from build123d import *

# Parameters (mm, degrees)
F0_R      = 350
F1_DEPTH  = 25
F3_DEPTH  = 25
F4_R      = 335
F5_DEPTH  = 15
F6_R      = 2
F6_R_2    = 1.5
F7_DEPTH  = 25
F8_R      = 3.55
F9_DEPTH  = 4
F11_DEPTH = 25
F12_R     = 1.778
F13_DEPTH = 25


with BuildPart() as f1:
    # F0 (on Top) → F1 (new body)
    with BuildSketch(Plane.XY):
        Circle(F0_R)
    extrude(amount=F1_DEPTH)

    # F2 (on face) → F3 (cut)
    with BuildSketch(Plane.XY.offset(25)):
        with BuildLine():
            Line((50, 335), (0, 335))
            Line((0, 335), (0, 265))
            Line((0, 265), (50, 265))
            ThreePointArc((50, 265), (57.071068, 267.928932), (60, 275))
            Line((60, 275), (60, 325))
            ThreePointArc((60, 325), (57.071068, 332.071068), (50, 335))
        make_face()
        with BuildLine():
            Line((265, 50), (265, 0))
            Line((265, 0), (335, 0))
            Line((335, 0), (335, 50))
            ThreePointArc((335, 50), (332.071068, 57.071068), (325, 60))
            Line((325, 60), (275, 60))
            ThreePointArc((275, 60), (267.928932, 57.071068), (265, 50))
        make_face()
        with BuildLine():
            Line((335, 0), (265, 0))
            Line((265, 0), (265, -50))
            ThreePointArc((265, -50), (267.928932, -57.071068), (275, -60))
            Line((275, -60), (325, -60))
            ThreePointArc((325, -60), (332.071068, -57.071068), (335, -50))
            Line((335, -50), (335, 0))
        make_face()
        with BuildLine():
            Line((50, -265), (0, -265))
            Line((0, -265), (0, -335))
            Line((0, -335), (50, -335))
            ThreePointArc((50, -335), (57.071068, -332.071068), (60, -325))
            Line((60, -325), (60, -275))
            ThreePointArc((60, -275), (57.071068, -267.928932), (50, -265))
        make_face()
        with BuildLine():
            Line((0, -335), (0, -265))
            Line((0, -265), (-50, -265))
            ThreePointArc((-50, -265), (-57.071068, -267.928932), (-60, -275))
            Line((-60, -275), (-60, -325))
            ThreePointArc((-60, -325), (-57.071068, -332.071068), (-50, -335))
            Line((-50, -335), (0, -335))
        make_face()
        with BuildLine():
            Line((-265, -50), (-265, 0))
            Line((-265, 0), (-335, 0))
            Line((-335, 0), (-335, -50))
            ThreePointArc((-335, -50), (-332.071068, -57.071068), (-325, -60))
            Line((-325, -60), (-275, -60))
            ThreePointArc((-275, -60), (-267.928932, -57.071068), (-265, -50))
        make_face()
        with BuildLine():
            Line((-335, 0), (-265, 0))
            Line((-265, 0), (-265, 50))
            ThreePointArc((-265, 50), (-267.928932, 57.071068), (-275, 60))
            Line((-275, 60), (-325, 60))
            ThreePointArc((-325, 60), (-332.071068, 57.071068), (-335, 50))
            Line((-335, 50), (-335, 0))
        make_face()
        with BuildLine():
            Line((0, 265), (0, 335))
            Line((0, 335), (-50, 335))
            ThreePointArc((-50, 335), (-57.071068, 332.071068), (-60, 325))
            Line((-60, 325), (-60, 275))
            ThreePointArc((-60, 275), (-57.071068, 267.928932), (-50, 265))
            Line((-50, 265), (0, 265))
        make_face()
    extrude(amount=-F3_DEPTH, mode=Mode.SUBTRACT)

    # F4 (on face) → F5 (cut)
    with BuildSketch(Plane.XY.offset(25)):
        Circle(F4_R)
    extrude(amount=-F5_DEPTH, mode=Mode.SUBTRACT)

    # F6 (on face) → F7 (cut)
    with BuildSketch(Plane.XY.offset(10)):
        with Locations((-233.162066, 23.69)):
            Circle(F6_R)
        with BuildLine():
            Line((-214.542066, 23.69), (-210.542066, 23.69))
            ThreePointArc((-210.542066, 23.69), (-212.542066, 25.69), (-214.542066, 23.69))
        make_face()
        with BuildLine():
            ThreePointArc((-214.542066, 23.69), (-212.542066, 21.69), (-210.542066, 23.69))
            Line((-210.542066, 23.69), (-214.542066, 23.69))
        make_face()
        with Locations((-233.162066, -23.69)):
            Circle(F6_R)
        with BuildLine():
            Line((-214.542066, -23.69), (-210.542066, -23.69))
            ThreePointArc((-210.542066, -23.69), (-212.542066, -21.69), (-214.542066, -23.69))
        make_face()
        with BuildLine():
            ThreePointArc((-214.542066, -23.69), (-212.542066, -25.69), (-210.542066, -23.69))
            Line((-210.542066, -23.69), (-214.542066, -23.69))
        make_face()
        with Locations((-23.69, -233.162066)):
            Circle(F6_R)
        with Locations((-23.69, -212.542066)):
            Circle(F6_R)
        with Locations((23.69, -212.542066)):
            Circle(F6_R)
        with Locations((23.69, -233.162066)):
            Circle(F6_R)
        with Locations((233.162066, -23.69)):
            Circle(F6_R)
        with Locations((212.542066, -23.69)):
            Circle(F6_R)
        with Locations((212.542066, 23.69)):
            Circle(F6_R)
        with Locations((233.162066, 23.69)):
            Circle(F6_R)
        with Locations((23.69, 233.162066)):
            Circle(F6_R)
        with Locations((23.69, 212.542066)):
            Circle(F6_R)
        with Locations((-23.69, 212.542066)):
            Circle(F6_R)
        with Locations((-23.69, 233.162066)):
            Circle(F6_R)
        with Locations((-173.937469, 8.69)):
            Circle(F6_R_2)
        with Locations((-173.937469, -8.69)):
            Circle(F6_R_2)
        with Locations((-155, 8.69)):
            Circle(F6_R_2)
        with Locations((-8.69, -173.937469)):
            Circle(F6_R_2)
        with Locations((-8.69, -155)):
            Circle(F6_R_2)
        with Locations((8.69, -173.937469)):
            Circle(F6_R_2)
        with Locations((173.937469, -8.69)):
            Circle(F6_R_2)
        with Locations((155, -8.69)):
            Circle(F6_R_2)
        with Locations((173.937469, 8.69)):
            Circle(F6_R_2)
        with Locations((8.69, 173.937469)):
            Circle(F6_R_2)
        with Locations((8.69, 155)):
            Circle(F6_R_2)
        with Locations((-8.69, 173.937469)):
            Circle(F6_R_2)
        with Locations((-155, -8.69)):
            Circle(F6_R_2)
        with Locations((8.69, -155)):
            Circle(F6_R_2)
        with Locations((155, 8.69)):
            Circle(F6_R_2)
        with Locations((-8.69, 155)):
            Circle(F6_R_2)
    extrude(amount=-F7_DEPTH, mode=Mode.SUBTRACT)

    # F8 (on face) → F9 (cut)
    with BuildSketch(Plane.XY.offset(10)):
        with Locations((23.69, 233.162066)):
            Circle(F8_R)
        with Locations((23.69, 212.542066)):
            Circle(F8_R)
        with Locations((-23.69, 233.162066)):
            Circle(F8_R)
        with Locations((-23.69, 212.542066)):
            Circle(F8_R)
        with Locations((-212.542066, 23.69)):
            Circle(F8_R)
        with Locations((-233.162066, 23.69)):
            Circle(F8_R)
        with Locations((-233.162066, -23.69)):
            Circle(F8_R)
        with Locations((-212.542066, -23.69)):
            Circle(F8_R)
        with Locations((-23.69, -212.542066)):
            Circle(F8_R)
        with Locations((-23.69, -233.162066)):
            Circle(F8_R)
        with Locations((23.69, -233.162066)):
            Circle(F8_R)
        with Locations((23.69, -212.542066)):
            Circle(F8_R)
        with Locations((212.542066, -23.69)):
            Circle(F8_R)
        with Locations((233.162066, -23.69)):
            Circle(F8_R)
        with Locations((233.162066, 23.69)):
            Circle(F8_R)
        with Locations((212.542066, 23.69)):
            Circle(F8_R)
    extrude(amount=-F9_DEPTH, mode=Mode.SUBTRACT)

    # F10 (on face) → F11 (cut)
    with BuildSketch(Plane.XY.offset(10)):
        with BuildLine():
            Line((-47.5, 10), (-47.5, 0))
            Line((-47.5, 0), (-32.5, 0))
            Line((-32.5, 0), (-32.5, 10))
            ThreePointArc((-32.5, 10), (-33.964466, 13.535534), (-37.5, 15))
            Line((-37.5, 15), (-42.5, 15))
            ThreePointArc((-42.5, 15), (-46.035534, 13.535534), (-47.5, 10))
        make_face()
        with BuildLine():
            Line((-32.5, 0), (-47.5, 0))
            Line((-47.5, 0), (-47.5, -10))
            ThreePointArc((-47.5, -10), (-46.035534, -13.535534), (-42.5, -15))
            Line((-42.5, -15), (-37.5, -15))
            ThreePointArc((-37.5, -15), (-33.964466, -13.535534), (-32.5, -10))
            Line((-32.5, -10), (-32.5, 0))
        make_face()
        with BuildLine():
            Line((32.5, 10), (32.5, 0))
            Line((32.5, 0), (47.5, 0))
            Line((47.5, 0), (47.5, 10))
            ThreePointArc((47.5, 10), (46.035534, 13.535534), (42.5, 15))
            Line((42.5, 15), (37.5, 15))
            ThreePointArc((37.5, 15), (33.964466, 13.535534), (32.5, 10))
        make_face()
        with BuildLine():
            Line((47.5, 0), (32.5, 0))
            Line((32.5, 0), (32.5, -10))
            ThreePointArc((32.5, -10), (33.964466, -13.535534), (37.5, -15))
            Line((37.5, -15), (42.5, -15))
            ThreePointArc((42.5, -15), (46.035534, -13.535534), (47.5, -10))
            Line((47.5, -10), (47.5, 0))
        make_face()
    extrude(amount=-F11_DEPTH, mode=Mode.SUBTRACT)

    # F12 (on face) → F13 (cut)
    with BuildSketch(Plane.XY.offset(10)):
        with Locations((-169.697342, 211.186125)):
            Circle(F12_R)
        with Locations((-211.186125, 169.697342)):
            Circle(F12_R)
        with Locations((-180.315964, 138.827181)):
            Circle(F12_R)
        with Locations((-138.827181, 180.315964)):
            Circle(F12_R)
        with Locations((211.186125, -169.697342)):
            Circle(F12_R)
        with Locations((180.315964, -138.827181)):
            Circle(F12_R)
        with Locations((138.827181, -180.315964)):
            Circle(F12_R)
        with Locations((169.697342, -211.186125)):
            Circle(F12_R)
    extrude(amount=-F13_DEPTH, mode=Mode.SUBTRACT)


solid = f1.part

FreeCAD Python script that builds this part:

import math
import FreeCAD as App
import Part
import Sketcher
Q = App.Units.Quantity

doc = App.newDocument("Part")
body = doc.addObject("PartDesign::Body", "Body")

sketch1 = body.newObject("Sketcher::SketchObject", "Sketch")
sketch1.AttachmentSupport = (doc.getObject("XY_Plane"), [""])
sketch1.MapMode = "FlatFace"
sketch1.addGeometry(Part.Circle(App.Vector(0, 0, 0), App.Vector(0, 0, 1), 350), False)
sketch1.addConstraint(Sketcher.Constraint("Coincident", 0, 3, -1, 1))
sketch1.addConstraint(Sketcher.Constraint("Diameter", 0, Q("700 mm")))
pad1 = body.newObject("PartDesign::Pad", "Pad")
pad1.Profile = sketch1
pad1.Length = 25

sketch2 = body.newObject("Sketcher::SketchObject", "Sketch001")
sketch2.AttachmentSupport = (doc.getObject("XY_Plane"), [""])
sketch2.MapMode = "FlatFace"
sketch2.AttachmentOffset = App.Placement(App.Vector(0, 0, 25), App.Rotation())
sketch2.addGeometry(Part.LineSegment(App.Vector(50, 335, 0), App.Vector(-50, 335, 0)), False)
sketch2.addGeometry(Part.ArcOfCircle(Part.Circle(App.Vector(-50, 325, 0), App.Vector(0, 0, 1), 10), math.radians(90), math.radians(180)), False)
sketch2.addGeometry(Part.LineSegment(App.Vector(-60, 325, 0), App.Vector(-60, 275, 0)), False)
sketch2.addGeometry(Part.ArcOfCircle(Part.Circle(App.Vector(-50, 275, 0), App.Vector(0, 0, 1), 10), math.radians(180), math.radians(270)), False)
sketch2.addGeometry(Part.LineSegment(App.Vector(-50, 265, 0), App.Vector(50, 265, 0)), False)
sketch2.addGeometry(Part.ArcOfCircle(Part.Circle(App.Vector(50, 275, 0), App.Vector(0, 0, 1), 10), math.radians(-90), math.radians(0)), False)
sketch2.addGeometry(Part.LineSegment(App.Vector(60, 275, 0), App.Vector(60, 325, 0)), False)
sketch2.addGeometry(Part.ArcOfCircle(Part.Circle(App.Vector(50, 325, 0), App.Vector(0, 0, 1), 10), math.radians(0), math.radians(90)), False)
sketch2.addGeometry(Part.LineSegment(App.Vector(265, 50, 0), App.Vector(265, -50, 0)), False)
sketch2.addGeometry(Part.ArcOfCircle(Part.Circle(App.Vector(275, -50, 0), App.Vector(0, 0, 1), 10), math.radians(180), math.radians(270)), False)
sketch2.addGeometry(Part.LineSegment(App.Vector(275, -60, 0), App.Vector(325, -60, 0)), False)
sketch2.addGeometry(Part.ArcOfCircle(Part.Circle(App.Vector(325, -50, 0), App.Vector(0, 0, 1), 10), math.radians(-90), math.radians(0)), False)
sketch2.addGeometry(Part.LineSegment(App.Vector(335, -50, 0), App.Vector(335, 50, 0)), False)
sketch2.addGeometry(Part.ArcOfCircle(Part.Circle(App.Vector(325, 50, 0), App.Vector(0, 0, 1), 10), math.radians(0), math.radians(90)), False)
sketch2.addGeometry(Part.LineSegment(App.Vector(325, 60, 0), App.Vector(275, 60, 0)), False)
sketch2.addGeometry(Part.ArcOfCircle(Part.Circle(App.Vector(275, 50, 0), App.Vector(0, 0, 1), 10), math.radians(90), math.radians(180)), False)
sketch2.addGeometry(Part.LineSegment(App.Vector(50, -265, 0), App.Vector(-50, -265, 0)), False)
sketch2.addGeometry(Part.ArcOfCircle(Part.Circle(App.Vector(-50, -275, 0), App.Vector(0, 0, 1), 10), math.radians(90), math.radians(180)), False)
sketch2.addGeometry(Part.LineSegment(App.Vector(-60, -275, 0), App.Vector(-60, -325, 0)), False)
sketch2.addGeometry(Part.ArcOfCircle(Part.Circle(App.Vector(-50, -325, 0), App.Vector(0, 0, 1), 10), math.radians(180), math.radians(270)), False)
sketch2.addGeometry(Part.LineSegment(App.Vector(-50, -335, 0), App.Vector(50, -335, 0)), False)
sketch2.addGeometry(Part.ArcOfCircle(Part.Circle(App.Vector(50, -325, 0), App.Vector(0, 0, 1), 10), math.radians(-90), math.radians(0)), False)
sketch2.addGeometry(Part.LineSegment(App.Vector(60, -325, 0), App.Vector(60, -275, 0)), False)
sketch2.addGeometry(Part.ArcOfCircle(Part.Circle(App.Vector(50, -275, 0), App.Vector(0, 0, 1), 10), math.radians(0), math.radians(90)), False)
sketch2.addGeometry(Part.LineSegment(App.Vector(-265, -50, 0), App.Vector(-265, 50, 0)), False)
sketch2.addGeometry(Part.ArcOfCircle(Part.Circle(App.Vector(-275, 50, 0), App.Vector(0, 0, 1), 10), math.radians(0), math.radians(90)), False)
sketch2.addGeometry(Part.LineSegment(App.Vector(-275, 60, 0), App.Vector(-325, 60, 0)), False)
sketch2.addGeometry(Part.ArcOfCircle(Part.Circle(App.Vector(-325, 50, 0), App.Vector(0, 0, 1), 10), math.radians(90), math.radians(180)), False)
sketch2.addGeometry(Part.LineSegment(App.Vector(-335, 50, 0), App.Vector(-335, -50, 0)), False)
sketch2.addGeometry(Part.ArcOfCircle(Part.Circle(App.Vector(-325, -50, 0), App.Vector(0, 0, 1), 10), math.radians(180), math.radians(270)), False)
sketch2.addGeometry(Part.LineSegment(App.Vector(-325, -60, 0), App.Vector(-275, -60, 0)), False)
sketch2.addGeometry(Part.ArcOfCircle(Part.Circle(App.Vector(-275, -50, 0), App.Vector(0, 0, 1), 10), math.radians(-90), math.radians(0)), False)
sketch2.addConstraint(Sketcher.Constraint("Tangent", 0, 2, 1, 1))
sketch2.addConstraint(Sketcher.Constraint("Tangent", 1, 2, 2, 1))
sketch2.addConstraint(Sketcher.Constraint("Tangent", 2, 2, 3, 1))
sketch2.addConstraint(Sketcher.Constraint("Tangent", 3, 2, 4, 1))
sketch2.addConstraint(Sketcher.Constraint("Tangent", 4, 2, 5, 1))
sketch2.addConstraint(Sketcher.Constraint("Tangent", 5, 2, 6, 1))
sketch2.addConstraint(Sketcher.Constraint("Tangent", 6, 2, 7, 1))
sketch2.addConstraint(Sketcher.Constraint("Tangent", 7, 2, 0, 1))
sketch2.addConstraint(Sketcher.Constraint("Tangent", 8, 2, 9, 1))
sketch2.addConstraint(Sketcher.Constraint("Tangent", 9, 2, 10, 1))
sketch2.addConstraint(Sketcher.Constraint("Tangent", 10, 2, 11, 1))
sketch2.addConstraint(Sketcher.Constraint("Tangent", 11, 2, 12, 1))
sketch2.addConstraint(Sketcher.Constraint("Tangent", 12, 2, 13, 1))
sketch2.addConstraint(Sketcher.Constraint("Tangent", 13, 2, 14, 1))
sketch2.addConstraint(Sketcher.Constraint("Tangent", 14, 2, 15, 1))
sketch2.addConstraint(Sketcher.Constraint("Tangent", 15, 2, 8, 1))
sketch2.addConstraint(Sketcher.Constraint("Tangent", 16, 2, 17, 1))
sketch2.addConstraint(Sketcher.Constraint("Tangent", 17, 2, 18, 1))
sketch2.addConstraint(Sketcher.Constraint("Tangent", 18, 2, 19, 1))
sketch2.addConstraint(Sketcher.Constraint("Tangent", 19, 2, 20, 1))
sketch2.addConstraint(Sketcher.Constraint("Tangent", 20, 2, 21, 1))
sketch2.addConstraint(Sketcher.Constraint("Tangent", 21, 2, 22, 1))
sketch2.addConstraint(Sketcher.Constraint("Tangent", 22, 2, 23, 1))
sketch2.addConstraint(Sketcher.Constraint("Tangent", 23, 2, 16, 1))
sketch2.addConstraint(Sketcher.Constraint("Tangent", 24, 2, 25, 1))
sketch2.addConstraint(Sketcher.Constraint("Tangent", 25, 2, 26, 1))
sketch2.addConstraint(Sketcher.Constraint("Tangent", 26, 2, 27, 1))
sketch2.addConstraint(Sketcher.Constraint("Tangent", 27, 2, 28, 1))
sketch2.addConstraint(Sketcher.Constraint("Tangent", 28, 2, 29, 1))
sketch2.addConstraint(Sketcher.Constraint("Tangent", 29, 2, 30, 1))
sketch2.addConstraint(Sketcher.Constraint("Tangent", 30, 2, 31, 1))
sketch2.addConstraint(Sketcher.Constraint("Tangent", 31, 2, 24, 1))
sketch2.addConstraint(Sketcher.Constraint("Horizontal", 0))
sketch2.addConstraint(Sketcher.Constraint("Vertical", 2))
sketch2.addConstraint(Sketcher.Constraint("Horizontal", 4))
sketch2.addConstraint(Sketcher.Constraint("Vertical", 6))
sketch2.addConstraint(Sketcher.Constraint("Vertical", 8))
sketch2.addConstraint(Sketcher.Constraint("Horizontal", 10))
sketch2.addConstraint(Sketcher.Constraint("Vertical", 12))
sketch2.addConstraint(Sketcher.Constraint("Horizontal", 14))
sketch2.addConstraint(Sketcher.Constraint("Horizontal", 16))
sketch2.addConstraint(Sketcher.Constraint("Vertical", 18))
sketch2.addConstraint(Sketcher.Constraint("Horizontal", 20))
sketch2.addConstraint(Sketcher.Constraint("Vertical", 22))
sketch2.addConstraint(Sketcher.Constraint("Vertical", 24))
sketch2.addConstraint(Sketcher.Constraint("Horizontal", 26))
sketch2.addConstraint(Sketcher.Constraint("Vertical", 28))
sketch2.addConstraint(Sketcher.Constraint("Horizontal", 30))
sketch2.addConstraint(Sketcher.Constraint("Equal", 1, 3))
sketch2.addConstraint(Sketcher.Constraint("Equal", 3, 5))
sketch2.addConstraint(Sketcher.Constraint("Equal", 5, 7))
sketch2.addConstraint(Sketcher.Constraint("Equal", 7, 9))
sketch2.addConstraint(Sketcher.Constraint("Equal", 9, 11))
sketch2.addConstraint(Sketcher.Constraint("Equal", 11, 13))
sketch2.addConstraint(Sketcher.Constraint("Equal", 13, 15))
sketch2.addConstraint(Sketcher.Constraint("Equal", 15, 17))
sketch2.addConstraint(Sketcher.Constraint("Equal", 17, 19))
sketch2.addConstraint(Sketcher.Constraint("Equal", 19, 21))
sketch2.addConstraint(Sketcher.Constraint("Equal", 21, 23))
sketch2.addConstraint(Sketcher.Constraint("Equal", 23, 25))
sketch2.addConstraint(Sketcher.Constraint("Equal", 25, 27))
sketch2.addConstraint(Sketcher.Constraint("Equal", 27, 29))
sketch2.addConstraint(Sketcher.Constraint("Equal", 29, 31))
sketch2.addConstraint(Sketcher.Constraint("Symmetric", 5, 3, 17, 3, -1, 1))
sketch2.addConstraint(Sketcher.Constraint("Symmetric", 1, 3, 21, 3, -1, 1))
sketch2.addConstraint(Sketcher.Constraint("Symmetric", 9, 3, 25, 3, -1, 1))
sketch2.addConstraint(Sketcher.Constraint("Symmetric", 13, 3, 29, 3, -1, 1))
sketch2.addConstraint(Sketcher.Constraint("Horizontal", 15, 3, 25, 3))
sketch2.addConstraint(Sketcher.Constraint("Vertical", 3, 3, 17, 3))
sketch2.addConstraint(Sketcher.Constraint("Equal", 30, 2))
sketch2.addConstraint(Sketcher.Constraint("Equal", 20, 8))
sketch2.addConstraint(Sketcher.Constraint("Radius", 1, Q("9.999999 mm")))
sketch2.addConstraint(Sketcher.Constraint("DistanceX", 0, 2, 0, 1, Q("100 mm")))
sketch2.addConstraint(Sketcher.Constraint("DistanceX", 10, 1, 10, 2, Q("50 mm")))
sketch2.addConstraint(Sketcher.Constraint("DistanceY", -1, 1, 1, 3, Q("325.000001 mm")))
sketch2.addConstraint(Sketcher.Constraint("DistanceX", -1, 1, 9, 3, Q("274.999999 mm")))
pocket1 = body.newObject("PartDesign::Pocket", "Pocket")
pocket1.Profile = sketch2
pocket1.Length = 25

sketch3 = body.newObject("Sketcher::SketchObject", "Sketch002")
sketch3.AttachmentSupport = (doc.getObject("XY_Plane"), [""])
sketch3.MapMode = "FlatFace"
sketch3.AttachmentOffset = App.Placement(App.Vector(0, 0, 25), App.Rotation())
sketch3.addGeometry(Part.Circle(App.Vector(0, 0, 0), App.Vector(0, 0, 1), 335), False)
sketch3.addConstraint(Sketcher.Constraint("Coincident", 0, 3, -1, 1))
sketch3.addConstraint(Sketcher.Constraint("Diameter", 0, Q("670 mm")))
pocket2 = body.newObject("PartDesign::Pocket", "Pocket001")
pocket2.Profile = sketch3
pocket2.Length = 15

sketch4 = body.newObject("Sketcher::SketchObject", "Sketch003")
sketch4.AttachmentSupport = (doc.getObject("XY_Plane"), [""])
sketch4.MapMode = "FlatFace"
sketch4.AttachmentOffset = App.Placement(App.Vector(0, 0, 10), App.Rotation())
sketch4.addGeometry(Part.Circle(App.Vector(-233.2, 23.7, 0), App.Vector(0, 0, 1), 2), False)
sketch4.addGeometry(Part.Circle(App.Vector(-212.5, 23.7, 0), App.Vector(0, 0, 1), 2), False)
sketch4.addGeometry(Part.Circle(App.Vector(-233.2, -23.7, 0), App.Vector(0, 0, 1), 2), False)
sketch4.addGeometry(Part.Circle(App.Vector(-212.5, -23.7, 0), App.Vector(0, 0, 1), 2), False)
sketch4.addGeometry(Part.Circle(App.Vector(-23.7, -233.2, 0), App.Vector(0, 0, 1), 2), False)
sketch4.addGeometry(Part.Circle(App.Vector(-23.7, -212.5, 0), App.Vector(0, 0, 1), 2), False)
sketch4.addGeometry(Part.Circle(App.Vector(23.7, -212.5, 0), App.Vector(0, 0, 1), 2), False)
sketch4.addGeometry(Part.Circle(App.Vector(23.7, -233.2, 0), App.Vector(0, 0, 1), 2), False)
sketch4.addGeometry(Part.Circle(App.Vector(233.2, -23.7, 0), App.Vector(0, 0, 1), 2), False)
sketch4.addGeometry(Part.Circle(App.Vector(212.5, -23.7, 0), App.Vector(0, 0, 1), 2), False)
sketch4.addGeometry(Part.Circle(App.Vector(212.5, 23.7, 0), App.Vector(0, 0, 1), 2), False)
sketch4.addGeometry(Part.Circle(App.Vector(233.2, 23.7, 0), App.Vector(0, 0, 1), 2), False)
sketch4.addGeometry(Part.Circle(App.Vector(23.7, 233.2, 0), App.Vector(0, 0, 1), 2), False)
sketch4.addGeometry(Part.Circle(App.Vector(23.7, 212.5, 0), App.Vector(0, 0, 1), 2), False)
sketch4.addGeometry(Part.Circle(App.Vector(-23.7, 212.5, 0), App.Vector(0, 0, 1), 2), False)
sketch4.addGeometry(Part.Circle(App.Vector(-23.7, 233.2, 0), App.Vector(0, 0, 1), 2), False)
sketch4.addGeometry(Part.Circle(App.Vector(-173.9, 8.7, 0), App.Vector(0, 0, 1), 1.5), False)
sketch4.addGeometry(Part.Circle(App.Vector(-173.9, -8.7, 0), App.Vector(0, 0, 1), 1.5), False)
sketch4.addGeometry(Part.Circle(App.Vector(-155, 8.7, 0), App.Vector(0, 0, 1), 1.5), False)
sketch4.addGeometry(Part.Circle(App.Vector(-8.7, -173.9, 0), App.Vector(0, 0, 1), 1.5), False)
sketch4.addGeometry(Part.Circle(App.Vector(-8.7, -155, 0), App.Vector(0, 0, 1), 1.5), False)
sketch4.addGeometry(Part.Circle(App.Vector(8.7, -173.9, 0), App.Vector(0, 0, 1), 1.5), False)
sketch4.addGeometry(Part.Circle(App.Vector(173.9, -8.7, 0), App.Vector(0, 0, 1), 1.5), False)
sketch4.addGeometry(Part.Circle(App.Vector(155, -8.7, 0), App.Vector(0, 0, 1), 1.5), False)
sketch4.addGeometry(Part.Circle(App.Vector(173.9, 8.7, 0), App.Vector(0, 0, 1), 1.5), False)
sketch4.addGeometry(Part.Circle(App.Vector(8.7, 173.9, 0), App.Vector(0, 0, 1), 1.5), False)
sketch4.addGeometry(Part.Circle(App.Vector(8.7, 155, 0), App.Vector(0, 0, 1), 1.5), False)
sketch4.addGeometry(Part.Circle(App.Vector(-8.7, 173.9, 0), App.Vector(0, 0, 1), 1.5), False)
sketch4.addGeometry(Part.Circle(App.Vector(-155, -8.7, 0), App.Vector(0, 0, 1), 1.5), False)
sketch4.addGeometry(Part.Circle(App.Vector(8.7, -155, 0), App.Vector(0, 0, 1), 1.5), False)
sketch4.addGeometry(Part.Circle(App.Vector(155, 8.7, 0), App.Vector(0, 0, 1), 1.5), False)
sketch4.addGeometry(Part.Circle(App.Vector(-8.7, 155, 0), App.Vector(0, 0, 1), 1.5), False)
sketch4.addConstraint(Sketcher.Constraint("Equal", 0, 1))
sketch4.addConstraint(Sketcher.Constraint("Equal", 1, 2))
sketch4.addConstraint(Sketcher.Constraint("Equal", 2, 3))
sketch4.addConstraint(Sketcher.Constraint("Equal", 3, 4))
sketch4.addConstraint(Sketcher.Constraint("Equal", 4, 5))
sketch4.addConstraint(Sketcher.Constraint("Equal", 5, 6))
sketch4.addConstraint(Sketcher.Constraint("Equal", 6, 7))
sketch4.addConstraint(Sketcher.Constraint("Equal", 7, 8))
sketch4.addConstraint(Sketcher.Constraint("Equal", 8, 9))
sketch4.addConstraint(Sketcher.Constraint("Equal", 9, 10))
sketch4.addConstraint(Sketcher.Constraint("Equal", 10, 11))
sketch4.addConstraint(Sketcher.Constraint("Equal", 11, 12))
sketch4.addConstraint(Sketcher.Constraint("Equal", 12, 13))
sketch4.addConstraint(Sketcher.Constraint("Equal", 13, 14))
sketch4.addConstraint(Sketcher.Constraint("Equal", 14, 15))
sketch4.addConstraint(Sketcher.Constraint("Equal", 16, 17))
sketch4.addConstraint(Sketcher.Constraint("Equal", 17, 18))
sketch4.addConstraint(Sketcher.Constraint("Equal", 18, 19))
sketch4.addConstraint(Sketcher.Constraint("Equal", 19, 20))
sketch4.addConstraint(Sketcher.Constraint("Equal", 20, 21))
sketch4.addConstraint(Sketcher.Constraint("Equal", 21, 22))
sketch4.addConstraint(Sketcher.Constraint("Equal", 22, 23))
sketch4.addConstraint(Sketcher.Constraint("Equal", 23, 24))
sketch4.addConstraint(Sketcher.Constraint("Equal", 24, 25))
sketch4.addConstraint(Sketcher.Constraint("Equal", 25, 26))
sketch4.addConstraint(Sketcher.Constraint("Equal", 26, 27))
sketch4.addConstraint(Sketcher.Constraint("Equal", 27, 28))
sketch4.addConstraint(Sketcher.Constraint("Equal", 28, 29))
sketch4.addConstraint(Sketcher.Constraint("Equal", 29, 30))
sketch4.addConstraint(Sketcher.Constraint("Equal", 30, 31))
sketch4.addConstraint(Sketcher.Constraint("Symmetric", 0, 3, 8, 3, -1, 1))
sketch4.addConstraint(Sketcher.Constraint("Symmetric", 1, 3, 9, 3, -1, 1))
sketch4.addConstraint(Sketcher.Constraint("Symmetric", 3, 3, 10, 3, -1, 1))
sketch4.addConstraint(Sketcher.Constraint("Symmetric", 2, 3, 11, 3, -1, 1))
sketch4.addConstraint(Sketcher.Constraint("Symmetric", 4, 3, 12, 3, -1, 1))
sketch4.addConstraint(Sketcher.Constraint("Symmetric", 5, 3, 13, 3, -1, 1))
sketch4.addConstraint(Sketcher.Constraint("Symmetric", 6, 3, 14, 3, -1, 1))
sketch4.addConstraint(Sketcher.Constraint("Symmetric", 7, 3, 15, 3, -1, 1))
sketch4.addConstraint(Sketcher.Constraint("Symmetric", 16, 3, 22, 3, -1, 1))
sketch4.addConstraint(Sketcher.Constraint("Symmetric", 18, 3, 23, 3, -1, 1))
sketch4.addConstraint(Sketcher.Constraint("Symmetric", 17, 3, 24, 3, -1, 1))
sketch4.addConstraint(Sketcher.Constraint("Symmetric", 19, 3, 25, 3, -1, 1))
sketch4.addConstraint(Sketcher.Constraint("Symmetric", 20, 3, 26, 3, -1, 1))
sketch4.addConstraint(Sketcher.Constraint("Symmetric", 21, 3, 27, 3, -1, 1))
sketch4.addConstraint(Sketcher.Constraint("Symmetric", 28, 3, 30, 3, -1, 1))
sketch4.addConstraint(Sketcher.Constraint("Symmetric", 29, 3, 31, 3, -1, 1))
sketch4.addConstraint(Sketcher.Constraint("Symmetric", 5, 3, 6, 3, -2))
sketch4.addConstraint(Sketcher.Constraint("Symmetric", 4, 3, 7, 3, -2))
sketch4.addConstraint(Sketcher.Constraint("Symmetric", 2, 3, 8, 3, -2))
sketch4.addConstraint(Sketcher.Constraint("Symmetric", 3, 3, 9, 3, -2))
sketch4.addConstraint(Sketcher.Constraint("Symmetric", 19, 3, 21, 3, -2))
sketch4.addConstraint(Sketcher.Constraint("Symmetric", 17, 3, 22, 3, -2))
sketch4.addConstraint(Sketcher.Constraint("Symmetric", 23, 3, 28, 3, -2))
sketch4.addConstraint(Sketcher.Constraint("Symmetric", 20, 3, 29, 3, -2))
sketch4.addConstraint(Sketcher.Constraint("Horizontal", 0, 3, 1, 3))
sketch4.addConstraint(Sketcher.Constraint("Horizontal", 16, 3, 18, 3))
sketch4.addConstraint(Sketcher.Constraint("Vertical", 4, 3, 5, 3))
sketch4.addConstraint(Sketcher.Constraint("Vertical", 19, 3, 20, 3))
sketch4.addConstraint(Sketcher.Constraint("Diameter", 0, Q("4 mm")))
sketch4.addConstraint(Sketcher.Constraint("Diameter", 16, Q("3 mm")))
sketch4.addConstraint(Sketcher.Constraint("DistanceX", 18, 3, -1, 1, Q("155 mm")))
sketch4.addConstraint(Sketcher.Constraint("DistanceY", 20, 3, -1, 1, Q("155 mm")))
sketch4.addConstraint(Sketcher.Constraint("DistanceY", 16, 3, 1, 3, Q("15 mm")))
sketch4.addConstraint(Sketcher.Constraint("DistanceX", 5, 3, 19, 3, Q("15 mm")))
sketch4.addConstraint(Sketcher.Constraint("DistanceY", -1, 1, 0, 3, Q("23.69 mm")))
sketch4.addConstraint(Sketcher.Constraint("DistanceX", 4, 3, -1, 1, Q("23.69 mm")))
sketch4.addConstraint(Sketcher.Constraint("DistanceX", 0, 3, 1, 3, Q("20.62 mm")))
sketch4.addConstraint(Sketcher.Constraint("DistanceY", 4, 3, 5, 3, Q("20.62 mm")))
sketch4.addConstraint(Sketcher.Constraint("DistanceX", 16, 3, -1, 1, Q("173.937469 mm")))
sketch4.addConstraint(Sketcher.Constraint("DistanceY", 19, 3, -1, 1, Q("173.937469 mm")))
sketch4.addConstraint(Sketcher.Constraint("DistanceX", 3, 3, 8, 3, Q("445.704132 mm")))
sketch4.addConstraint(Sketcher.Constraint("DistanceY", 4, 3, -1, 1, Q("233.162066 mm")))
pocket3 = body.newObject("PartDesign::Pocket", "Pocket002")
pocket3.Profile = sketch4
pocket3.Length = 25

sketch5 = body.newObject("Sketcher::SketchObject", "Sketch004")
sketch5.AttachmentSupport = (doc.getObject("XY_Plane"), [""])
sketch5.MapMode = "FlatFace"
sketch5.AttachmentOffset = App.Placement(App.Vector(0, 0, 10), App.Rotation())
sketch5.addGeometry(Part.Circle(App.Vector(23.7, 233.2, 0), App.Vector(0, 0, 1), 3.5), False)
sketch5.addGeometry(Part.Circle(App.Vector(23.7, 212.5, 0), App.Vector(0, 0, 1), 3.5), False)
sketch5.addGeometry(Part.Circle(App.Vector(-23.7, 233.2, 0), App.Vector(0, 0, 1), 3.5), False)
sketch5.addGeometry(Part.Circle(App.Vector(-23.7, 212.5, 0), App.Vector(0, 0, 1), 3.5), False)
sketch5.addGeometry(Part.Circle(App.Vector(-212.5, 23.7, 0), App.Vector(0, 0, 1), 3.5), False)
sketch5.addGeometry(Part.Circle(App.Vector(-233.2, 23.7, 0), App.Vector(0, 0, 1), 3.5), False)
sketch5.addGeometry(Part.Circle(App.Vector(-233.2, -23.7, 0), App.Vector(0, 0, 1), 3.5), False)
sketch5.addGeometry(Part.Circle(App.Vector(-212.5, -23.7, 0), App.Vector(0, 0, 1), 3.5), False)
sketch5.addGeometry(Part.Circle(App.Vector(-23.7, -212.5, 0), App.Vector(0, 0, 1), 3.5), False)
sketch5.addGeometry(Part.Circle(App.Vector(-23.7, -233.2, 0), App.Vector(0, 0, 1), 3.5), False)
sketch5.addGeometry(Part.Circle(App.Vector(23.7, -233.2, 0), App.Vector(0, 0, 1), 3.5), False)
sketch5.addGeometry(Part.Circle(App.Vector(23.7, -212.5, 0), App.Vector(0, 0, 1), 3.5), False)
sketch5.addGeometry(Part.Circle(App.Vector(212.5, -23.7, 0), App.Vector(0, 0, 1), 3.5), False)
sketch5.addGeometry(Part.Circle(App.Vector(233.2, -23.7, 0), App.Vector(0, 0, 1), 3.5), False)
sketch5.addGeometry(Part.Circle(App.Vector(233.2, 23.7, 0), App.Vector(0, 0, 1), 3.5), False)
sketch5.addGeometry(Part.Circle(App.Vector(212.5, 23.7, 0), App.Vector(0, 0, 1), 3.5), False)
sketch5.addConstraint(Sketcher.Constraint("Equal", 0, 1))
sketch5.addConstraint(Sketcher.Constraint("Equal", 1, 2))
sketch5.addConstraint(Sketcher.Constraint("Equal", 2, 3))
sketch5.addConstraint(Sketcher.Constraint("Equal", 3, 4))
sketch5.addConstraint(Sketcher.Constraint("Equal", 4, 5))
sketch5.addConstraint(Sketcher.Constraint("Equal", 5, 6))
sketch5.addConstraint(Sketcher.Constraint("Equal", 6, 7))
sketch5.addConstraint(Sketcher.Constraint("Equal", 7, 8))
sketch5.addConstraint(Sketcher.Constraint("Equal", 8, 9))
sketch5.addConstraint(Sketcher.Constraint("Equal", 9, 10))
sketch5.addConstraint(Sketcher.Constraint("Equal", 10, 11))
sketch5.addConstraint(Sketcher.Constraint("Equal", 11, 12))
sketch5.addConstraint(Sketcher.Constraint("Equal", 12, 13))
sketch5.addConstraint(Sketcher.Constraint("Equal", 13, 14))
sketch5.addConstraint(Sketcher.Constraint("Equal", 14, 15))
sketch5.addConstraint(Sketcher.Constraint("Symmetric", 1, 3, 8, 3, -1, 1))
sketch5.addConstraint(Sketcher.Constraint("Symmetric", 0, 3, 9, 3, -1, 1))
sketch5.addConstraint(Sketcher.Constraint("Symmetric", 2, 3, 10, 3, -1, 1))
sketch5.addConstraint(Sketcher.Constraint("Symmetric", 3, 3, 11, 3, -1, 1))
sketch5.addConstraint(Sketcher.Constraint("Symmetric", 4, 3, 12, 3, -1, 1))
sketch5.addConstraint(Sketcher.Constraint("Symmetric", 5, 3, 13, 3, -1, 1))
sketch5.addConstraint(Sketcher.Constraint("Symmetric", 6, 3, 14, 3, -1, 1))
sketch5.addConstraint(Sketcher.Constraint("Symmetric", 7, 3, 15, 3, -1, 1))
sketch5.addConstraint(Sketcher.Constraint("Symmetric", 0, 3, 2, 3, -2))
sketch5.addConstraint(Sketcher.Constraint("Symmetric", 1, 3, 3, 3, -2))
sketch5.addConstraint(Sketcher.Constraint("Symmetric", 7, 3, 12, 3, -2))
sketch5.addConstraint(Sketcher.Constraint("Symmetric", 6, 3, 13, 3, -2))
sketch5.addConstraint(Sketcher.Constraint("Horizontal", 4, 3, 5, 3))
sketch5.addConstraint(Sketcher.Constraint("Vertical", 0, 3, 1, 3))
sketch5.addConstraint(Sketcher.Constraint("Diameter", 0, Q("7.1 mm")))
sketch5.addConstraint(Sketcher.Constraint("DistanceX", -1, 1, 0, 3, Q("23.69 mm")))
sketch5.addConstraint(Sketcher.Constraint("DistanceY", -1, 1, 4, 3, Q("23.69 mm")))
sketch5.addConstraint(Sketcher.Constraint("DistanceY", 1, 3, 0, 3, Q("20.62 mm")))
sketch5.addConstraint(Sketcher.Constraint("DistanceX", 5, 3, 4, 3, Q("20.62 mm")))
sketch5.addConstraint(Sketcher.Constraint("DistanceY", 8, 3, 3, 3, Q("425.084132 mm")))
sketch5.addConstraint(Sketcher.Constraint("DistanceX", 4, 3, -1, 1, Q("212.542066 mm")))
pocket4 = body.newObject("PartDesign::Pocket", "Pocket003")
pocket4.Profile = sketch5
pocket4.Length = 4

sketch6 = body.newObject("Sketcher::SketchObject", "Sketch005")
sketch6.AttachmentSupport = (doc.getObject("XY_Plane"), [""])
sketch6.MapMode = "FlatFace"
sketch6.AttachmentOffset = App.Placement(App.Vector(0, 0, 10), App.Rotation())
sketch6.addGeometry(Part.LineSegment(App.Vector(-47.5, 10, 0), App.Vector(-47.5, -10, 0)), False)
sketch6.addGeometry(Part.ArcOfCircle(Part.Circle(App.Vector(-42.5, -10, 0), App.Vector(0, 0, 1), 5), math.radians(180), math.radians(270)), False)
sketch6.addGeometry(Part.LineSegment(App.Vector(-42.5, -15, 0), App.Vector(-37.5, -15, 0)), False)
sketch6.addGeometry(Part.ArcOfCircle(Part.Circle(App.Vector(-37.5, -10, 0), App.Vector(0, 0, 1), 5), math.radians(-90), math.radians(0)), False)
sketch6.addGeometry(Part.LineSegment(App.Vector(-32.5, -10, 0), App.Vector(-32.5, 10, 0)), False)
sketch6.addGeometry(Part.ArcOfCircle(Part.Circle(App.Vector(-37.5, 10, 0), App.Vector(0, 0, 1), 5), math.radians(0), math.radians(90)), False)
sketch6.addGeometry(Part.LineSegment(App.Vector(-37.5, 15, 0), App.Vector(-42.5, 15, 0)), False)
sketch6.addGeometry(Part.ArcOfCircle(Part.Circle(App.Vector(-42.5, 10, 0), App.Vector(0, 0, 1), 5), math.radians(90), math.radians(180)), False)
sketch6.addGeometry(Part.LineSegment(App.Vector(32.5, 10, 0), App.Vector(32.5, -10, 0)), False)
sketch6.addGeometry(Part.ArcOfCircle(Part.Circle(App.Vector(37.5, -10, 0), App.Vector(0, 0, 1), 5), math.radians(180), math.radians(270)), False)
sketch6.addGeometry(Part.LineSegment(App.Vector(37.5, -15, 0), App.Vector(42.5, -15, 0)), False)
sketch6.addGeometry(Part.ArcOfCircle(Part.Circle(App.Vector(42.5, -10, 0), App.Vector(0, 0, 1), 5), math.radians(-90), math.radians(0)), False)
sketch6.addGeometry(Part.LineSegment(App.Vector(47.5, -10, 0), App.Vector(47.5, 10, 0)), False)
sketch6.addGeometry(Part.ArcOfCircle(Part.Circle(App.Vector(42.5, 10, 0), App.Vector(0, 0, 1), 5), math.radians(0), math.radians(90)), False)
sketch6.addGeometry(Part.LineSegment(App.Vector(42.5, 15, 0), App.Vector(37.5, 15, 0)), False)
sketch6.addGeometry(Part.ArcOfCircle(Part.Circle(App.Vector(37.5, 10, 0), App.Vector(0, 0, 1), 5), math.radians(90), math.radians(180)), False)
sketch6.addConstraint(Sketcher.Constraint("Tangent", 0, 2, 1, 1))
sketch6.addConstraint(Sketcher.Constraint("Tangent", 1, 2, 2, 1))
sketch6.addConstraint(Sketcher.Constraint("Tangent", 2, 2, 3, 1))
sketch6.addConstraint(Sketcher.Constraint("Tangent", 3, 2, 4, 1))
sketch6.addConstraint(Sketcher.Constraint("Tangent", 4, 2, 5, 1))
sketch6.addConstraint(Sketcher.Constraint("Tangent", 5, 2, 6, 1))
sketch6.addConstraint(Sketcher.Constraint("Tangent", 6, 2, 7, 1))
sketch6.addConstraint(Sketcher.Constraint("Tangent", 7, 2, 0, 1))
sketch6.addConstraint(Sketcher.Constraint("Tangent", 8, 2, 9, 1))
sketch6.addConstraint(Sketcher.Constraint("Tangent", 9, 2, 10, 1))
sketch6.addConstraint(Sketcher.Constraint("Tangent", 10, 2, 11, 1))
sketch6.addConstraint(Sketcher.Constraint("Tangent", 11, 2, 12, 1))
sketch6.addConstraint(Sketcher.Constraint("Tangent", 12, 2, 13, 1))
sketch6.addConstraint(Sketcher.Constraint("Tangent", 13, 2, 14, 1))
sketch6.addConstraint(Sketcher.Constraint("Tangent", 14, 2, 15, 1))
sketch6.addConstraint(Sketcher.Constraint("Tangent", 15, 2, 8, 1))
sketch6.addConstraint(Sketcher.Constraint("Vertical", 0))
sketch6.addConstraint(Sketcher.Constraint("Horizontal", 2))
sketch6.addConstraint(Sketcher.Constraint("Vertical", 4))
sketch6.addConstraint(Sketcher.Constraint("Horizontal", 6))
sketch6.addConstraint(Sketcher.Constraint("Vertical", 8))
sketch6.addConstraint(Sketcher.Constraint("Horizontal", 10))
sketch6.addConstraint(Sketcher.Constraint("Vertical", 12))
sketch6.addConstraint(Sketcher.Constraint("Horizontal", 14))
sketch6.addConstraint(Sketcher.Constraint("Equal", 1, 3))
sketch6.addConstraint(Sketcher.Constraint("Equal", 3, 5))
sketch6.addConstraint(Sketcher.Constraint("Equal", 5, 7))
sketch6.addConstraint(Sketcher.Constraint("Equal", 7, 9))
sketch6.addConstraint(Sketcher.Constraint("Equal", 9, 11))
sketch6.addConstraint(Sketcher.Constraint("Equal", 11, 13))
sketch6.addConstraint(Sketcher.Constraint("Equal", 13, 15))
sketch6.addConstraint(Sketcher.Constraint("Symmetric", 5, 3, 9, 3, -1, 1))
sketch6.addConstraint(Sketcher.Constraint("Symmetric", 1, 3, 13, 3, -1, 1))
sketch6.addConstraint(Sketcher.Constraint("Horizontal", 3, 3, 9, 3))
sketch6.addConstraint(Sketcher.Constraint("Radius", 1, Q("5 mm")))
sketch6.addConstraint(Sketcher.Constraint("DistanceX", 2, 1, 2, 2, Q("5 mm")))
sketch6.addConstraint(Sketcher.Constraint("DistanceY", 0, 2, 0, 1, Q("20 mm")))
sketch6.addConstraint(Sketcher.Constraint("DistanceX", 3, 3, 9, 3, Q("74.999999 mm")))
pocket5 = body.newObject("PartDesign::Pocket", "Pocket004")
pocket5.Profile = sketch6
pocket5.Length = 25

sketch7 = body.newObject("Sketcher::SketchObject", "Sketch006")
sketch7.AttachmentSupport = (doc.getObject("XY_Plane"), [""])
sketch7.MapMode = "FlatFace"
sketch7.AttachmentOffset = App.Placement(App.Vector(0, 0, 10), App.Rotation())
sketch7.addGeometry(Part.Circle(App.Vector(-169.7, 211.2, 0), App.Vector(0, 0, 1), 1.8), False)
sketch7.addGeometry(Part.Circle(App.Vector(-211.2, 169.7, 0), App.Vector(0, 0, 1), 1.8), False)
sketch7.addGeometry(Part.Circle(App.Vector(-180.3, 138.8, 0), App.Vector(0, 0, 1), 1.8), False)
sketch7.addGeometry(Part.Circle(App.Vector(-138.8, 180.3, 0), App.Vector(0, 0, 1), 1.8), False)
sketch7.addGeometry(Part.Circle(App.Vector(211.2, -169.7, 0), App.Vector(0, 0, 1), 1.8), False)
sketch7.addGeometry(Part.Circle(App.Vector(180.3, -138.8, 0), App.Vector(0, 0, 1), 1.8), False)
sketch7.addGeometry(Part.Circle(App.Vector(138.8, -180.3, 0), App.Vector(0, 0, 1), 1.8), False)
sketch7.addGeometry(Part.Circle(App.Vector(169.7, -211.2, 0), App.Vector(0, 0, 1), 1.8), False)
sketch7.addConstraint(Sketcher.Constraint("Equal", 0, 1))
sketch7.addConstraint(Sketcher.Constraint("Equal", 1, 2))
sketch7.addConstraint(Sketcher.Constraint("Equal", 2, 3))
sketch7.addConstraint(Sketcher.Constraint("Equal", 3, 4))
sketch7.addConstraint(Sketcher.Constraint("Equal", 4, 5))
sketch7.addConstraint(Sketcher.Constraint("Equal", 5, 6))
sketch7.addConstraint(Sketcher.Constraint("Equal", 6, 7))
sketch7.addConstraint(Sketcher.Constraint("Symmetric", 1, 3, 4, 3, -1, 1))
sketch7.addConstraint(Sketcher.Constraint("Symmetric", 2, 3, 5, 3, -1, 1))
sketch7.addConstraint(Sketcher.Constraint("Symmetric", 3, 3, 6, 3, -1, 1))
sketch7.addConstraint(Sketcher.Constraint("Symmetric", 0, 3, 7, 3, -1, 1))
sketch7.addConstraint(Sketcher.Constraint("Diameter", 0, Q("3.556 mm")))
sketch7.addConstraint(Sketcher.Constraint("DistanceX", 0, 3, -1, 1, Q("169.697342 mm")))
sketch7.addConstraint(Sketcher.Constraint("DistanceY", -1, 1, 1, 3, Q("169.697342 mm")))
sketch7.addConstraint(Sketcher.Constraint("DistanceY", -1, 1, 2, 3, Q("138.827181 mm")))
sketch7.addConstraint(Sketcher.Constraint("DistanceX", 3, 3, -1, 1, Q("138.827181 mm")))
sketch7.addConstraint(Sketcher.Constraint("DistanceX", 1, 3, 2, 3, Q("30.870161 mm")))
sketch7.addConstraint(Sketcher.Constraint("DistanceY", 3, 3, 0, 3, Q("30.870161 mm")))
sketch7.addConstraint(Sketcher.Constraint("DistanceX", 2, 3, 4, 3, Q("391.502089 mm")))
sketch7.addConstraint(Sketcher.Constraint("DistanceY", 6, 3, 3, 3, Q("360.631928 mm")))
pocket6 = body.newObject("PartDesign::Pocket", "Pocket005")
pocket6.Profile = sketch7
pocket6.Length = 25

doc.recompute()
